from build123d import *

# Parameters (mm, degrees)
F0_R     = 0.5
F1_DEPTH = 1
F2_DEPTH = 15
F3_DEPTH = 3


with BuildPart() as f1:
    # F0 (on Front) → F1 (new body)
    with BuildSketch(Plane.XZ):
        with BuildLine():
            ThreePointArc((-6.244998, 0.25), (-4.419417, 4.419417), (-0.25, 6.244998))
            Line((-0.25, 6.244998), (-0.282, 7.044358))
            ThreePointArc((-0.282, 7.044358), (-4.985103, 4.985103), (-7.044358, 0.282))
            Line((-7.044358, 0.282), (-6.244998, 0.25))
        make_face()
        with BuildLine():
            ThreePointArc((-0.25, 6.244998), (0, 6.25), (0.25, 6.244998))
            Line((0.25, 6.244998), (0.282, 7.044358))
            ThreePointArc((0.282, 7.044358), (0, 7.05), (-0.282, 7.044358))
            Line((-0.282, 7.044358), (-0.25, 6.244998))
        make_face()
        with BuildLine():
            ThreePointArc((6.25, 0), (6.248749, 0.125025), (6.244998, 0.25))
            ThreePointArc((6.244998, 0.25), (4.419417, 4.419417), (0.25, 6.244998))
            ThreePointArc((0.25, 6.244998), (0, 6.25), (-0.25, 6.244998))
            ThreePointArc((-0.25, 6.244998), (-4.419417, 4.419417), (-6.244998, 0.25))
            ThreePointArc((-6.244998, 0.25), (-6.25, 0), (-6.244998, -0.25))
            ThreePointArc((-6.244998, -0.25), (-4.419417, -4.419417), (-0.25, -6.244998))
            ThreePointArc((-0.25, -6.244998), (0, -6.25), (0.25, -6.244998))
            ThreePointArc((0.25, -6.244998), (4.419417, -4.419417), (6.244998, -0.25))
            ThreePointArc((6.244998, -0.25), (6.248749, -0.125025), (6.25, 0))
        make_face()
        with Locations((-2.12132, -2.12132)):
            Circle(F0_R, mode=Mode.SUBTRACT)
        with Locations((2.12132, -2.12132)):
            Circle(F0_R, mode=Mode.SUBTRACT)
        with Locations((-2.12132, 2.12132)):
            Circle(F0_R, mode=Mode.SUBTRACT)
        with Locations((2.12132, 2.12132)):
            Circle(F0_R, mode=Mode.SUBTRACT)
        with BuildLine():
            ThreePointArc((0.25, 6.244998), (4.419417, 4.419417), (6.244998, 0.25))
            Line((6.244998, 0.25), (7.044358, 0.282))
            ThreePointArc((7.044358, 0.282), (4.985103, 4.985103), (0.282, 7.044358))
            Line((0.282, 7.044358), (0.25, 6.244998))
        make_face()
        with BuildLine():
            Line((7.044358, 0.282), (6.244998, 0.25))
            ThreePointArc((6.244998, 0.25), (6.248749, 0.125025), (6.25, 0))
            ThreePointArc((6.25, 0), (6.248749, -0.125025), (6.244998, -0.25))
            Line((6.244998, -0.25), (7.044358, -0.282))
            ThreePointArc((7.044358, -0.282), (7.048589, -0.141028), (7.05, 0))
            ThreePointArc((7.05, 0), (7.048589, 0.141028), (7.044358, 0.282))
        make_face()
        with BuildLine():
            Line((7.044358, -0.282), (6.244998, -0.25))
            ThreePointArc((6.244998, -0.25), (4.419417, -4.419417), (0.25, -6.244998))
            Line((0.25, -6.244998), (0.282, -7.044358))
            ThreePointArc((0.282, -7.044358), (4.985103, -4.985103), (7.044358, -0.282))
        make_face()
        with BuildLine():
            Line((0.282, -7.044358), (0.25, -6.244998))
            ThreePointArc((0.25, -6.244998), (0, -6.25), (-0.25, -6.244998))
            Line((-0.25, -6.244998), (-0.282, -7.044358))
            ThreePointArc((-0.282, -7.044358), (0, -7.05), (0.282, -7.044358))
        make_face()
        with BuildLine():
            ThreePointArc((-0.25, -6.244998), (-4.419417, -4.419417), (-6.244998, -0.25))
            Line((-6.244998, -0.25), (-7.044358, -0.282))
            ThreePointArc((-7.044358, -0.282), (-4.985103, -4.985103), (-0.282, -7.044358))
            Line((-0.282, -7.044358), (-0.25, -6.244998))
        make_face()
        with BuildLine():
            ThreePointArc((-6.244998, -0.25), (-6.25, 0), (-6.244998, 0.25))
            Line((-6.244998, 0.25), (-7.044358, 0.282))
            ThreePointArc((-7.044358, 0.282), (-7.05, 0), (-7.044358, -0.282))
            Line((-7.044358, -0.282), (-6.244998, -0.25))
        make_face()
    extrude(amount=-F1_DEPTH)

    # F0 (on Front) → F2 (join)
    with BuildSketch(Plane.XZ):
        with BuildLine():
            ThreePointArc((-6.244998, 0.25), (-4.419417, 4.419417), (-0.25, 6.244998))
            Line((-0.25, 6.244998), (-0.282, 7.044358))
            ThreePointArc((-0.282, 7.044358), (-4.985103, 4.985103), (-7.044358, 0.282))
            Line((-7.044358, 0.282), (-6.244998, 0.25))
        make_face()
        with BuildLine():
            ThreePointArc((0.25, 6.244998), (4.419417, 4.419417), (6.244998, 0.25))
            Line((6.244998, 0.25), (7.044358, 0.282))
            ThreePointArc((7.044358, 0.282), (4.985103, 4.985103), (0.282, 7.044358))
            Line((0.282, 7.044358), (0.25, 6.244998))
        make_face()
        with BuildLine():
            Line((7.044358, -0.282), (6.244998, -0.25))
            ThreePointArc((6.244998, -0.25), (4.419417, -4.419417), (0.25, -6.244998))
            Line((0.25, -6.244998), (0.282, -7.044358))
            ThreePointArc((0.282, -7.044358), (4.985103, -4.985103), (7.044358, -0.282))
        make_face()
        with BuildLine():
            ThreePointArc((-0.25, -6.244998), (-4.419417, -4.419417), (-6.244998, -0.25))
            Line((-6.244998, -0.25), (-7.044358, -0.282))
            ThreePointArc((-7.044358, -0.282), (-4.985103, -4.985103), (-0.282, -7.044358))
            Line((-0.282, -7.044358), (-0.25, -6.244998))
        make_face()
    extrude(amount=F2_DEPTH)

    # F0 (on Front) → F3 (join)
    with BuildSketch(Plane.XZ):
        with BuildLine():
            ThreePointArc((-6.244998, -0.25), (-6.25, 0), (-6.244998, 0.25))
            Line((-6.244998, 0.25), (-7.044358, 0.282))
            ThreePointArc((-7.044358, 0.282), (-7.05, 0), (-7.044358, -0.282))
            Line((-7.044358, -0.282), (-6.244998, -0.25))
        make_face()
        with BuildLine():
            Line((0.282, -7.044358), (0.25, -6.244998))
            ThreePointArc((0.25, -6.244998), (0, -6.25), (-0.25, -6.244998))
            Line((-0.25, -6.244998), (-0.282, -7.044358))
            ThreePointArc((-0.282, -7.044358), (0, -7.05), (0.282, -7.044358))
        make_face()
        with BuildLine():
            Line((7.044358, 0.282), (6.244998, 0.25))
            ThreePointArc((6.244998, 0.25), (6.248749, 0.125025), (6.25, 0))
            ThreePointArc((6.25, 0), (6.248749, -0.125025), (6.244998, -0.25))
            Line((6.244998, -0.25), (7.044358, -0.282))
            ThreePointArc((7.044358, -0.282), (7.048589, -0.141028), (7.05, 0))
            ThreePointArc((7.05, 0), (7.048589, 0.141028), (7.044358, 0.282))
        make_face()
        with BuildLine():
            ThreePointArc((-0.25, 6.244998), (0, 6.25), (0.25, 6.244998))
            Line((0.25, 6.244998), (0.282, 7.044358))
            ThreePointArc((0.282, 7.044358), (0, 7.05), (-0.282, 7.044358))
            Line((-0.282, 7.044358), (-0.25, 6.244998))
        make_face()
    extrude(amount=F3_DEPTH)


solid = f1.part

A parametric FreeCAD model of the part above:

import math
import FreeCAD as App
import Part
import Sketcher
from FreeCAD import Vector
Q = App.Units.Quantity

doc = App.newDocument("Part")
params = doc.addObject("Spreadsheet::Sheet", "Params")
for row, (alias, value) in enumerate([
    ("sketch1_diameter", "1 mm"),
    ("sketch1_diameter2", "1 mm"),
    ("sketch1_diameter3", "1 mm"),
    ("sketch1_diameter4", "1 mm"),
    ("sketch1_radius", "7.05 mm"),
    ("pad1_length", "1 mm"),
    ("sketch2_radius", "6.250002 mm"),
    ("sketch2_radius2", "7.05 mm"),
    ("pad2_length", "15 mm"),
    ("sketch3_length", "0.8 mm"),
    ("pad3_length", "3 mm"),
], start=1):
    params.set(f"A{row}", alias)
    params.set(f"B{row}", "=" + value)
    params.setAlias(f"B{row}", alias)

body = doc.addObject("PartDesign::Body", "Body")

# Sketch on XZ plane
sketch1 = body.newObject("Sketcher::SketchObject", "Sketch")
sketch1.AttachmentSupport = (doc.getObject("XZ_Plane"), [""])
sketch1.MapMode = "FlatFace"
sketch1.addGeometry(Part.ArcOfCircle(Part.Circle(Vector(0, -0.000322, 0), Vector(0, 0, 1), 7.050322), math.radians(87.707662), math.radians(92.292338)), False)
sketch1.addGeometry(Part.ArcOfCircle(Part.Circle(Vector(0, 0, 0), Vector(0, 0, 1), 7.05), math.radians(92.292442), math.radians(177.707558)), False)
sketch1.addGeometry(Part.ArcOfCircle(Part.Circle(Vector(0.000322, 0, 0), Vector(0, 0, 1), 7.050322), math.radians(177.707662), math.radians(182.292338)), False)
sketch1.addGeometry(Part.ArcOfCircle(Part.Circle(Vector(0, 0, 0), Vector(0, 0, 1), 7.05), math.radians(-177.707558), math.radians(-92.292442)), False)
sketch1.addGeometry(Part.ArcOfCircle(Part.Circle(Vector(0, 0.000322, 0), Vector(0, 0, 1), 7.050322), math.radians(-92.292338), math.radians(-87.707662)), False)
sketch1.addGeometry(Part.ArcOfCircle(Part.Circle(Vector(0, 0, 0), Vector(0, 0, 1), 7.05), math.radians(-87.707558), math.radians(-2.292442)), False)
sketch1.addGeometry(Part.ArcOfCircle(Part.Circle(Vector(-0.002137, 0.000036, 0), Vector(0, 0, 1), 7.052137), math.radians(-2.292043), math.radians(-0.000295)), False)
sketch1.addGeometry(Part.ArcOfCircle(Part.Circle(Vector(-0.002137, -0.000036, 0), Vector(0, 0, 1), 7.052137), math.radians(0.000295), math.radians(2.292043)), False)
sketch1.addGeometry(Part.ArcOfCircle(Part.Circle(Vector(0, 0, 0), Vector(0, 0, 1), 7.05), math.radians(2.292442), math.radians(87.707558)), False)
sketch1.addGeometry(Part.Circle(Vector(-2.12132, -2.12132, 0), Vector(0, 0, 1), 0.5), False)
sketch1.addGeometry(Part.Circle(Vector(2.12132, -2.12132, 0), Vector(0, 0, 1), 0.5), False)
sketch1.addGeometry(Part.Circle(Vector(-2.12132, 2.12132, 0), Vector(0, 0, 1), 0.5), False)
sketch1.addGeometry(Part.Circle(Vector(2.12132, 2.12132, 0), Vector(0, 0, 1), 0.5), False)
sketch1.addConstraint(Sketcher.Constraint("Coincident", 0, 2, 1, 1))
sketch1.addConstraint(Sketcher.Constraint("Coincident", 1, 2, 2, 1))
sketch1.addConstraint(Sketcher.Constraint("Coincident", 2, 2, 3, 1))
sketch1.addConstraint(Sketcher.Constraint("Coincident", 3, 2, 4, 1))
sketch1.addConstraint(Sketcher.Constraint("Coincident", 4, 2, 5, 1))
sketch1.addConstraint(Sketcher.Constraint("Coincident", 5, 2, 6, 1))
sketch1.addConstraint(Sketcher.Constraint("Coincident", 6, 2, 7, 1))
sketch1.addConstraint(Sketcher.Constraint("Coincident", 7, 2, 8, 1))
sketch1.addConstraint(Sketcher.Constraint("Coincident", 8, 2, 0, 1))
sketch1.addConstraint(Sketcher.Constraint("Coincident", 1, 3, -1, 1))
sketch1.addConstraint(Sketcher.Constraint("Coincident", 3, 3, -1, 1))
sketch1.addConstraint(Sketcher.Constraint("Coincident", 5, 3, -1, 1))
sketch1.addConstraint(Sketcher.Constraint("Coincident", 8, 3, -1, 1))
sketch1.addConstraint(Sketcher.Constraint("PointOnObject", 0, 3, -2))
sketch1.addConstraint(Sketcher.Constraint("PointOnObject", 2, 3, -1))
sketch1.addConstraint(Sketcher.Constraint("PointOnObject", 4, 3, -2))
sketch1.addConstraint(Sketcher.Constraint("PointOnObject", 6, 2, -1))
sketch1.addConstraint(Sketcher.Constraint("Diameter", 9, Q("1 mm")))
sketch1.addConstraint(Sketcher.Constraint("Diameter", 10, Q("1 mm")))
sketch1.addConstraint(Sketcher.Constraint("Diameter", 11, Q("1 mm")))
sketch1.addConstraint(Sketcher.Constraint("Diameter", 12, Q("1 mm")))
sketch1.addConstraint(Sketcher.Constraint("Radius", 1, Q("7.05 mm")))
sketch1.addConstraint(Sketcher.Constraint("DistanceX", -1, 1, 6, 2, Q("7.05 mm")))
sketch1.addConstraint(Sketcher.Constraint("Radius", 0, Q("7.050322 mm")))
sketch1.addConstraint(Sketcher.Constraint("Radius", 2, Q("7.050322 mm")))
sketch1.addConstraint(Sketcher.Constraint("Radius", 4, Q("7.050322 mm")))
sketch1.addConstraint(Sketcher.Constraint("DistanceX", 0, 2, -1, 1, Q("0.282 mm")))
sketch1.addConstraint(Sketcher.Constraint("DistanceY", -1, 1, 1, 2, Q("0.282 mm")))
sketch1.addConstraint(Sketcher.Constraint("DistanceY", 2, 2, -1, 1, Q("0.282 mm")))
sketch1.addConstraint(Sketcher.Constraint("DistanceX", 3, 2, -1, 1, Q("0.282 mm")))
sketch1.addConstraint(Sketcher.Constraint("DistanceX", -1, 1, 4, 2, Q("0.282 mm")))
sketch1.addConstraint(Sketcher.Constraint("DistanceY", 5, 2, -1, 1, Q("0.282 mm")))
sketch1.addConstraint(Sketcher.Constraint("DistanceY", -1, 1, 7, 2, Q("0.282 mm")))
sketch1.addConstraint(Sketcher.Constraint("DistanceX", -1, 1, 8, 2, Q("0.282 mm")))
sketch1.addConstraint(Sketcher.Constraint("Radius", 6, Q("7.052137 mm")))
sketch1.addConstraint(Sketcher.Constraint("Radius", 7, Q("7.052137 mm")))
sketch1.addConstraint(Sketcher.Constraint("DistanceY", 9, 3, 0, 3, Q("2.120998 mm")))
sketch1.addConstraint(Sketcher.Constraint("DistanceY", 10, 3, 0, 3, Q("2.120998 mm")))
sketch1.addConstraint(Sketcher.Constraint("DistanceX", 2, 3, 10, 3, Q("2.120998 mm")))
sketch1.addConstraint(Sketcher.Constraint("DistanceY", 4, 3, 11, 3, Q("2.120998 mm")))
sketch1.addConstraint(Sketcher.Constraint("DistanceX", 2, 3, 12, 3, Q("2.120998 mm")))
sketch1.addConstraint(Sketcher.Constraint("DistanceY", 4, 3, 12, 3, Q("2.120998 mm")))
sketch1.addConstraint(Sketcher.Constraint("DistanceX", 9, 3, -1, 1, Q("2.12132 mm")))
sketch1.addConstraint(Sketcher.Constraint("DistanceX", 11, 3, -1, 1, Q("2.12132 mm")))
sketch1.setExpression("Constraints[17]", "Params.sketch1_diameter")
sketch1.setExpression("Constraints[18]", "Params.sketch1_diameter2")
sketch1.setExpression("Constraints[19]", "Params.sketch1_diameter3")
sketch1.setExpression("Constraints[20]", "Params.sketch1_diameter4")
sketch1.setExpression("Constraints[21]", "Params.sketch1_radius")
pad1 = body.newObject("PartDesign::Pad", "Pad")
pad1.Profile = sketch1
pad1.setExpression("Length", "Params.pad1_length")
pad1.Reversed = True

# Sketch on XZ plane
sketch2 = body.newObject("Sketcher::SketchObject", "Sketch001")
sketch2.AttachmentSupport = (doc.getObject("XZ_Plane"), [""])
sketch2.MapMode = "FlatFace"
sketch2.addGeometry(Part.ArcOfCircle(Part.Circle(Vector(0.000001, -0.000001, 0), Vector(0, 0, 1), 6.250002), math.radians(92.292455), math.radians(177.707545)), False)
sketch2.addGeometry(Part.LineSegment(Vector(-0.25, 6.244998, 0), Vector(-0.282, 7.044358, 0)), False)
sketch2.addGeometry(Part.ArcOfCircle(Part.Circle(Vector(0, 0, 0), Vector(0, 0, 1), 7.05), math.radians(92.292442), math.radians(177.707558)), False)
sketch2.addGeometry(Part.LineSegment(Vector(-7.044358, 0.282, 0), Vector(-6.244998, 0.25, 0)), False)
sketch2.addGeometry(Part.ArcOfCircle(Part.Circle(Vector(-0.000001, -0.000001, 0), Vector(0, 0, 1), 6.250002), math.radians(2.292455), math.radians(87.707545)), False)
sketch2.addGeometry(Part.LineSegment(Vector(6.244998, 0.25, 0), Vector(7.044358, 0.282, 0)), False)
sketch2.addGeometry(Part.ArcOfCircle(Part.Circle(Vector(0, 0, 0), Vector(0, 0, 1), 7.05), math.radians(2.292442), math.radians(87.707558)), False)
sketch2.addGeometry(Part.LineSegment(Vector(0.282, 7.044358, 0), Vector(0.25, 6.244998, 0)), False)
sketch2.addGeometry(Part.LineSegment(Vector(7.044358, -0.282, 0), Vector(6.244998, -0.25, 0)), False)
sketch2.addGeometry(Part.ArcOfCircle(Part.Circle(Vector(-0.000001, 0.000001, 0), Vector(0, 0, 1), 6.250002), math.radians(-87.707545), math.radians(-2.292455)), False)
sketch2.addGeometry(Part.LineSegment(Vector(0.25, -6.244998, 0), Vector(0.282, -7.044358, 0)), False)
sketch2.addGeometry(Part.ArcOfCircle(Part.Circle(Vector(0, 0, 0), Vector(0, 0, 1), 7.05), math.radians(-87.707558), math.radians(-2.292442)), False)
sketch2.addGeometry(Part.ArcOfCircle(Part.Circle(Vector(0.000001, 0.000001, 0), Vector(0, 0, 1), 6.250002), math.radians(-177.707545), math.radians(-92.292455)), False)
sketch2.addGeometry(Part.LineSegment(Vector(-6.244998, -0.25, 0), Vector(-7.044358, -0.282, 0)), False)
sketch2.addGeometry(Part.ArcOfCircle(Part.Circle(Vector(0, 0, 0), Vector(0, 0, 1), 7.05), math.radians(-177.707558), math.radians(-92.292442)), False)
sketch2.addGeometry(Part.LineSegment(Vector(-0.282, -7.044358, 0), Vector(-0.25, -6.244998, 0)), False)
sketch2.addConstraint(Sketcher.Constraint("Coincident", 0, 1, 1, 1))
sketch2.addConstraint(Sketcher.Constraint("Coincident", 1, 2, 2, 1))
sketch2.addConstraint(Sketcher.Constraint("Coincident", 2, 2, 3, 1))
sketch2.addConstraint(Sketcher.Constraint("Coincident", 3, 2, 0, 2))
sketch2.addConstraint(Sketcher.Constraint("Coincident", 4, 1, 5, 1))
sketch2.addConstraint(Sketcher.Constraint("Coincident", 5, 2, 6, 1))
sketch2.addConstraint(Sketcher.Constraint("Coincident", 6, 2, 7, 1))
sketch2.addConstraint(Sketcher.Constraint("Coincident", 7, 2, 4, 2))
sketch2.addConstraint(Sketcher.Constraint("Coincident", 8, 2, 9, 2))
sketch2.addConstraint(Sketcher.Constraint("Coincident", 9, 1, 10, 1))
sketch2.addConstraint(Sketcher.Constraint("Coincident", 10, 2, 11, 1))
sketch2.addConstraint(Sketcher.Constraint("Coincident", 11, 2, 8, 1))
sketch2.addConstraint(Sketcher.Constraint("Coincident", 12, 1, 13, 1))
sketch2.addConstraint(Sketcher.Constraint("Coincident", 13, 2, 14, 1))
sketch2.addConstraint(Sketcher.Constraint("Coincident", 14, 2, 15, 1))
sketch2.addConstraint(Sketcher.Constraint("Coincident", 15, 2, 12, 2))
sketch2.addConstraint(Sketcher.Constraint("Coincident", 0, 3, -1, 1))
sketch2.addConstraint(Sketcher.Constraint("Coincident", 2, 3, -1, 1))
sketch2.addConstraint(Sketcher.Constraint("Coincident", 4, 3, -1, 1))
sketch2.addConstraint(Sketcher.Constraint("Coincident", 6, 3, -1, 1))
sketch2.addConstraint(Sketcher.Constraint("Coincident", 9, 3, -1, 1))
sketch2.addConstraint(Sketcher.Constraint("Coincident", 11, 3, -1, 1))
sketch2.addConstraint(Sketcher.Constraint("Coincident", 12, 3, -1, 1))
sketch2.addConstraint(Sketcher.Constraint("Coincident", 14, 3, -1, 1))
sketch2.addConstraint(Sketcher.Constraint("Equal", 0, 4))
sketch2.addConstraint(Sketcher.Constraint("Equal", 2, 6))
sketch2.addConstraint(Sketcher.Constraint("Equal", 4, 9))
sketch2.addConstraint(Sketcher.Constraint("Equal", 6, 11))
sketch2.addConstraint(Sketcher.Constraint("Equal", 9, 12))
sketch2.addConstraint(Sketcher.Constraint("Equal", 11, 14))
sketch2.addConstraint(Sketcher.Constraint("Perpendicular", 1, 5))
sketch2.addConstraint(Sketcher.Constraint("Perpendicular", 3, 7))
sketch2.addConstraint(Sketcher.Constraint("Perpendicular", 7, 8))
sketch2.addConstraint(Sketcher.Constraint("Perpendicular", 5, 10))
sketch2.addConstraint(Sketcher.Constraint("Perpendicular", 10, 13))
sketch2.addConstraint(Sketcher.Constraint("Perpendicular", 8, 15))
sketch2.addConstraint(Sketcher.Constraint("Horizontal", 3, 2, 4, 1))
sketch2.addConstraint(Sketcher.Constraint("Horizontal", 2, 2, 5, 2))
sketch2.addConstraint(Sketcher.Constraint("Horizontal", 1, 2, 6, 2))
sketch2.addConstraint(Sketcher.Constraint("Horizontal", 8, 2, 12, 1))
sketch2.addConstraint(Sketcher.Constraint("Horizontal", 10, 2, 14, 2))
sketch2.addConstraint(Sketcher.Constraint("Vertical", 4, 1, 8, 2))
sketch2.addConstraint(Sketcher.Constraint("Vertical", 7, 2, 9, 1))
sketch2.addConstraint(Sketcher.Constraint("Radius", 0, Q("6.250002 mm")))
sketch2.addConstraint(Sketcher.Constraint("Radius", 2, Q("7.05 mm")))
sketch2.addConstraint(Sketcher.Constraint("DistanceX", 0, 1, 7, 2, Q("0.5 mm")))
sketch2.addConstraint(Sketcher.Constraint("DistanceY", 8, 2, 4, 1, Q("0.5 mm")))
sketch2.addConstraint(Sketcher.Constraint("DistanceX", 1, 2, -1, 1, Q("0.282 mm")))
sketch2.setExpression("Constraints[43]", "Params.sketch2_radius")
sketch2.setExpression("Constraints[44]", "Params.sketch2_radius2")
pad2 = body.newObject("PartDesign::Pad", "Pad001")
pad2.Profile = sketch2
pad2.setExpression("Length", "Params.pad2_length")

# Sketch on XZ plane
sketch3 = body.newObject("Sketcher::SketchObject", "Sketch002")
sketch3.AttachmentSupport = (doc.getObject("XZ_Plane"), [""])
sketch3.MapMode = "FlatFace"
sketch3.addGeometry(Part.ArcOfCircle(Part.Circle(Vector(0.000002, 0, 0), Vector(0, 0, 1), 6.250002), math.radians(177.707558), math.radians(182.292442)), False)
sketch3.addGeometry(Part.LineSegment(Vector(-6.244998, 0.25, 0), Vector(-7.044358, 0.282, 0)), False)
sketch3.addGeometry(Part.ArcOfCircle(Part.Circle(Vector(0.000322, 0, 0), Vector(0, 0, 1), 7.050322), math.radians(177.707662), math.radians(182.292338)), False)
sketch3.addGeometry(Part.LineSegment(Vector(-7.044358, -0.282, 0), Vector(-6.244998, -0.25, 0)), False)
sketch3.addGeometry(Part.LineSegment(Vector(0.282, -7.044358, 0), Vector(0.25, -6.244998, 0)), False)
sketch3.addGeometry(Part.ArcOfCircle(Part.Circle(Vector(0, 0.000002, 0), Vector(0, 0, 1), 6.250002), math.radians(-92.292442), math.radians(-87.707558)), False)
sketch3.addGeometry(Part.LineSegment(Vector(-0.25, -6.244998, 0), Vector(-0.282, -7.044358, 0)), False)
sketch3.addGeometry(Part.ArcOfCircle(Part.Circle(Vector(0, 0.000322, 0), Vector(0, 0, 1), 7.050322), math.radians(-92.292338), math.radians(-87.707662)), False)
sketch3.addGeometry(Part.LineSegment(Vector(7.044358, 0.282, 0), Vector(6.244998, 0.25, 0)), False)
sketch3.addGeometry(Part.ArcOfCircle(Part.Circle(Vector(-0.001877, -0.000038, 0), Vector(0, 0, 1), 6.251877), math.radians(0.000344), math.radians(2.292098)), False)
sketch3.addGeometry(Part.ArcOfCircle(Part.Circle(Vector(-0.001877, 0.000038, 0), Vector(0, 0, 1), 6.251877), math.radians(-2.292098), math.radians(-0.000344)), False)
sketch3.addGeometry(Part.LineSegment(Vector(6.244998, -0.25, 0), Vector(7.044358, -0.282, 0)), False)
sketch3.addGeometry(Part.ArcOfCircle(Part.Circle(Vector(-0.002137, 0.000036, 0), Vector(0, 0, 1), 7.052137), math.radians(-2.292043), math.radians(-0.000295)), False)
sketch3.addGeometry(Part.ArcOfCircle(Part.Circle(Vector(-0.002137, -0.000036, 0), Vector(0, 0, 1), 7.052137), math.radians(0.000295), math.radians(2.292043)), False)
sketch3.addGeometry(Part.ArcOfCircle(Part.Circle(Vector(0, -0.000002, 0), Vector(0, 0, 1), 6.250002), math.radians(87.707558), math.radians(92.292442)), False)
sketch3.addGeometry(Part.LineSegment(Vector(0.25, 6.244998, 0), Vector(0.282, 7.044358, 0)), False)
sketch3.addGeometry(Part.ArcOfCircle(Part.Circle(Vector(0, -0.000322, 0), Vector(0, 0, 1), 7.050322), math.radians(87.707662), math.radians(92.292338)), False)
sketch3.addGeometry(Part.LineSegment(Vector(-0.282, 7.044358, 0), Vector(-0.25, 6.244998, 0)), False)
sketch3.addConstraint(Sketcher.Constraint("Coincident", 0, 1, 1, 1))
sketch3.addConstraint(Sketcher.Constraint("Coincident", 1, 2, 2, 1))
sketch3.addConstraint(Sketcher.Constraint("Coincident", 2, 2, 3, 1))
sketch3.addConstraint(Sketcher.Constraint("Coincident", 3, 2, 0, 2))
sketch3.addConstraint(Sketcher.Constraint("Coincident", 4, 2, 5, 2))
sketch3.addConstraint(Sketcher.Constraint("Coincident", 5, 1, 6, 1))
sketch3.addConstraint(Sketcher.Constraint("Coincident", 6, 2, 7, 1))
sketch3.addConstraint(Sketcher.Constraint("Coincident", 7, 2, 4, 1))
sketch3.addConstraint(Sketcher.Constraint("Coincident", 8, 2, 9, 2))
sketch3.addConstraint(Sketcher.Constraint("Coincident", 9, 1, 10, 2))
sketch3.addConstraint(Sketcher.Constraint("Coincident", 10, 1, 11, 1))
sketch3.addConstraint(Sketcher.Constraint("Coincident", 11, 2, 12, 1))
sketch3.addConstraint(Sketcher.Constraint("Coincident", 12, 2, 13, 1))
sketch3.addConstraint(Sketcher.Constraint("Coincident", 13, 2, 8, 1))
sketch3.addConstraint(Sketcher.Constraint("Coincident", 14, 1, 15, 1))
sketch3.addConstraint(Sketcher.Constraint("Coincident", 15, 2, 16, 1))
sketch3.addConstraint(Sketcher.Constraint("Coincident", 16, 2, 17, 1))
sketch3.addConstraint(Sketcher.Constraint("Coincident", 17, 2, 14, 2))
sketch3.addConstraint(Sketcher.Constraint("Coincident", 0, 3, -1, 1))
sketch3.addConstraint(Sketcher.Constraint("Coincident", 5, 3, -1, 1))
sketch3.addConstraint(Sketcher.Constraint("Coincident", 14, 3, -1, 1))
sketch3.addConstraint(Sketcher.Constraint("Equal", 0, 5))
sketch3.addConstraint(Sketcher.Constraint("Equal", 2, 7))
sketch3.addConstraint(Sketcher.Constraint("Equal", 9, 10))
sketch3.addConstraint(Sketcher.Constraint("Equal", 12, 13))
sketch3.addConstraint(Sketcher.Constraint("Equal", 5, 14))
sketch3.addConstraint(Sketcher.Constraint("Equal", 7, 16))
sketch3.addConstraint(Sketcher.Constraint("Symmetric", 7, 3, 16, 3, -1, 1))
sketch3.addConstraint(Sketcher.Constraint("Symmetric", 3, 2, 8, 2, -1, 1))
sketch3.addConstraint(Sketcher.Constraint("Symmetric", 0, 1, 10, 1, -1, 1))
sketch3.addConstraint(Sketcher.Constraint("Symmetric", 1, 2, 11, 2, -1, 1))
sketch3.addConstraint(Sketcher.Constraint("Symmetric", 2, 2, 13, 2, -1, 1))
sketch3.addConstraint(Sketcher.Constraint("Symmetric", 6, 2, 7, 2, -2))
sketch3.addConstraint(Sketcher.Constraint("Symmetric", 2, 2, 11, 2, -2))
sketch3.addConstraint(Sketcher.Constraint("PointOnObject", 9, 1, -1))
sketch3.addConstraint(Sketcher.Constraint("PointOnObject", 12, 2, -1))
sketch3.addConstraint(Sketcher.Constraint("Perpendicular", 3, 4))
sketch3.addConstraint(Sketcher.Constraint("Perpendicular", 1, 6))
sketch3.addConstraint(Sketcher.Constraint("Perpendicular", 11, 15))
sketch3.addConstraint(Sketcher.Constraint("Perpendicular", 8, 17))
sketch3.addConstraint(Sketcher.Constraint("Horizontal", 10, 3, 12, 3))
sketch3.addConstraint(Sketcher.Constraint("Horizontal", 4, 2, 5, 1))
sketch3.addConstraint(Sketcher.Constraint("Horizontal", 15, 2, 16, 2))
sketch3.addConstraint(Sketcher.Constraint("Vertical", 4, 2, 14, 1))
sketch3.addConstraint(Sketcher.Constraint("Equal", 3, 4))
sketch3.addConstraint(Sketcher.Constraint("Distance", 1, Q("0.8 mm")))
sketch3.addConstraint(Sketcher.Constraint("DistanceY", 3, 2, 0, 1, Q("0.5 mm")))
sketch3.addConstraint(Sketcher.Constraint("DistanceX", 5, 1, 4, 2, Q("0.5 mm")))
sketch3.addConstraint(Sketcher.Constraint("DistanceX", -1, 1, 9, 1, Q("6.25 mm")))
sketch3.addConstraint(Sketcher.Constraint("Radius", 2, Q("7.050322 mm")))
sketch3.addConstraint(Sketcher.Constraint("DistanceX", 0, 1, -1, 1, Q("6.244998 mm")))
sketch3.addConstraint(Sketcher.Constraint("DistanceY", -1, 1, 1, 2, Q("0.282 mm")))
sketch3.addConstraint(Sketcher.Constraint("Radius", 9, Q("6.251877 mm")))
sketch3.addConstraint(Sketcher.Constraint("Radius", 12, Q("7.052137 mm")))
sketch3.setExpression("Constraints[45]", "Params.sketch3_length")
pad3 = body.newObject("PartDesign::Pad", "Pad002")
pad3.Profile = sketch3
pad3.setExpression("Length", "Params.pad3_length")

doc.recompute()
